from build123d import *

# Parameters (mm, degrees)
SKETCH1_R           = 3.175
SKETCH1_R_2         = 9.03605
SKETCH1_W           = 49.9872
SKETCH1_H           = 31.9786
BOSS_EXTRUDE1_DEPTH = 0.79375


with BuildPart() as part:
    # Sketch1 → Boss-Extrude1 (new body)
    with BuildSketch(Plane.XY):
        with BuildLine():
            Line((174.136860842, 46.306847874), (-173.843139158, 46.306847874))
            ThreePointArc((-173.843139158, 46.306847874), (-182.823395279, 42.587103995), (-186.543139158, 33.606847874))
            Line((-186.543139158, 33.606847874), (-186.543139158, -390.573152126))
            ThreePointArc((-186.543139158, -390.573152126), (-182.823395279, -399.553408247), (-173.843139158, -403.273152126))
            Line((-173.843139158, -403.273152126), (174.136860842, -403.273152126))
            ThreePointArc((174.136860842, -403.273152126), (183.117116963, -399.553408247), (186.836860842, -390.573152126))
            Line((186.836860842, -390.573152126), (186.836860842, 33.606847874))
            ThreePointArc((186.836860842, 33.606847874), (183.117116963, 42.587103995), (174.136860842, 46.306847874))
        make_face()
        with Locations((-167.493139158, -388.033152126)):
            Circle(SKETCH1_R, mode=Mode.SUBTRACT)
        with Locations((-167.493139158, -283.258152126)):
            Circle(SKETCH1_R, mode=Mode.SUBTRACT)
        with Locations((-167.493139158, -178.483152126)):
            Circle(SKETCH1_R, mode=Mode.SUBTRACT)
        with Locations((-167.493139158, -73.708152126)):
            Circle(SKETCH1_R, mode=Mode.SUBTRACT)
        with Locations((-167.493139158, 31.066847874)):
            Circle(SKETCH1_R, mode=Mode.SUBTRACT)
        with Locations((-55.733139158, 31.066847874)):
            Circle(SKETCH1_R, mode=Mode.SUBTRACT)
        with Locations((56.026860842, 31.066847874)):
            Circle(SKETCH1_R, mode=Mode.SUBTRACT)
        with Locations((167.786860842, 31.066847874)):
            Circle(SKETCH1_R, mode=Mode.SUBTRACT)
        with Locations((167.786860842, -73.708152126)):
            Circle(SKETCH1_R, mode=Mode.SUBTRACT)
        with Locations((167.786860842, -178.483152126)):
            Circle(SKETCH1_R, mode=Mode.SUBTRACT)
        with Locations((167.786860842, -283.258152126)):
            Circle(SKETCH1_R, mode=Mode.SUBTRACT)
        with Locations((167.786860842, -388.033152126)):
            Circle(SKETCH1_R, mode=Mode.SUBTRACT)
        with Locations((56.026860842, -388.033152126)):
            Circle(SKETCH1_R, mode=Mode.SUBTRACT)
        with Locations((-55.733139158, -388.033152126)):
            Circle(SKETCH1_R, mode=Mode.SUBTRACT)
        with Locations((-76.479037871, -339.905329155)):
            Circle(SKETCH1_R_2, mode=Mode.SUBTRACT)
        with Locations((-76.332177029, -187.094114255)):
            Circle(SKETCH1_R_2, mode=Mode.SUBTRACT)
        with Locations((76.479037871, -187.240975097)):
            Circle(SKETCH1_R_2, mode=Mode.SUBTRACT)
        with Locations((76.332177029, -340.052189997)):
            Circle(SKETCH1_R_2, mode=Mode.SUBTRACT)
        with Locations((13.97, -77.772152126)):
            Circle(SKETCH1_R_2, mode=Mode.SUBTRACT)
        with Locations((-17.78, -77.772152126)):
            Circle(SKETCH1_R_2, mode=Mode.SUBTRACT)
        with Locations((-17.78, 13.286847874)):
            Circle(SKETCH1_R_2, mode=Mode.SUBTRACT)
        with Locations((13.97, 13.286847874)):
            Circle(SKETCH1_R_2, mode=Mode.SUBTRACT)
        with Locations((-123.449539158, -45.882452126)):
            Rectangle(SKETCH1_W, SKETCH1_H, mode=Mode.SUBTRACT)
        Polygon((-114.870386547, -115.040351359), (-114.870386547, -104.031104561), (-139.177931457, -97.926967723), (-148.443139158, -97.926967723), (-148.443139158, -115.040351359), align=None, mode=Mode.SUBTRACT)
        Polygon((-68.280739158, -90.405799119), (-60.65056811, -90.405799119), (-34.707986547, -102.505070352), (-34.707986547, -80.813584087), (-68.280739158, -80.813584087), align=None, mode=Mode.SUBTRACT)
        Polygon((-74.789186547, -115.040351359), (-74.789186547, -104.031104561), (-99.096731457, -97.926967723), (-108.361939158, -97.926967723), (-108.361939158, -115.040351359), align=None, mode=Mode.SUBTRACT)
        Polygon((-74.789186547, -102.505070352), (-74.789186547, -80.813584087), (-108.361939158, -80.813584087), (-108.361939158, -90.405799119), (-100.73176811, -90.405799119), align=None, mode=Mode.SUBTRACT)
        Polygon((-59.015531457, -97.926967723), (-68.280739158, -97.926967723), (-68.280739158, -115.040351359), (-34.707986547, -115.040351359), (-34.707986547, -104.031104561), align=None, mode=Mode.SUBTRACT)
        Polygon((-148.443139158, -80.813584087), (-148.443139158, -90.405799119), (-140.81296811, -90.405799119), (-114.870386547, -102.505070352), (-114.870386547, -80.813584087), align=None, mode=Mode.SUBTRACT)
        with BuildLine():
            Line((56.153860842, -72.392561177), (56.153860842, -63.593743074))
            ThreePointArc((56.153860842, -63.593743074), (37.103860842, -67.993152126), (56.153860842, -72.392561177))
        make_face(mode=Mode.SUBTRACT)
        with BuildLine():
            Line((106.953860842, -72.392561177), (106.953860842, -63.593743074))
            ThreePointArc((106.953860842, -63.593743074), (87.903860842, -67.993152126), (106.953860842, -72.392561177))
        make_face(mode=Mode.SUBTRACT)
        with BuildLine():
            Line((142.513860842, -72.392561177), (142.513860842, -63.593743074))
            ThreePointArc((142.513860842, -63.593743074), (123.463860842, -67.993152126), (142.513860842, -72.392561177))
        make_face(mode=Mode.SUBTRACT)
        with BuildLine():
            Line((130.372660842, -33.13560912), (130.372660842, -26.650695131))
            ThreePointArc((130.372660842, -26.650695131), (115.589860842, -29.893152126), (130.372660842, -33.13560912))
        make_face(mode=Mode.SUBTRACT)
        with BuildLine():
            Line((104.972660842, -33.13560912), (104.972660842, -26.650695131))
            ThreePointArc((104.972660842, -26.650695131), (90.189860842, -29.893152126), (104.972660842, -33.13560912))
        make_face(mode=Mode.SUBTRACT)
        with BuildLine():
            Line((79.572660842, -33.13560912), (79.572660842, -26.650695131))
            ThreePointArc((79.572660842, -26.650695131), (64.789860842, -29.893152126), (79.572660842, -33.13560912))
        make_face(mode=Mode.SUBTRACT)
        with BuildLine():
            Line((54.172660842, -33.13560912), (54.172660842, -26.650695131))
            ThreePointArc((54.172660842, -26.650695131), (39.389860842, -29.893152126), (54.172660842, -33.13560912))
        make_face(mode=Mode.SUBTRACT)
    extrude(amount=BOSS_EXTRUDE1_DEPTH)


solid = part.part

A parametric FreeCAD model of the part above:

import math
import FreeCAD as App
import Part
import Sketcher

V = App.Vector
Q = App.Units.Quantity


def add_polygon(sketch, points):
    """Adds a closed chain of lines whose ends are joined by coincident constraints."""
    first, n = sketch.GeometryCount, len(points)
    for a, b in zip(points, points[1:] + points[:1]):
        sketch.addGeometry(Part.LineSegment(App.Vector(*a, 0), App.Vector(*b, 0)), False)
    for i in range(n):
        sketch.addConstraint(Sketcher.Constraint("Coincident", first + i, 2, first + (i + 1) % n, 1))

doc = App.newDocument("Part")
body = doc.addObject("PartDesign::Body", "Body")

# Sketch on XY plane
sketch1 = body.newObject("Sketcher::SketchObject", "Sketch")
sketch1.AttachmentSupport = (doc.getObject("XY_Plane"), [""])
sketch1.MapMode = "FlatFace"
sketch1.addGeometry(Part.LineSegment(V(174.136861, 46.306848, 0), V(-173.843139, 46.306848, 0)), False)  # 0
sketch1.addGeometry(Part.ArcOfCircle(Part.Circle(V(-173.843139, 33.606848, 0), V(0, 0, 1), 12.7), math.radians(90), math.radians(180)), False)  # 1
sketch1.addGeometry(Part.LineSegment(V(-186.543139, 33.606848, 0), V(-186.543139, -390.573152, 0)), False)  # 2
sketch1.addGeometry(Part.ArcOfCircle(Part.Circle(V(-173.843139, -390.573152, 0), V(0, 0, 1), 12.7), math.radians(180), math.radians(270)), False)  # 3
sketch1.addGeometry(Part.LineSegment(V(-173.843139, -403.273152, 0), V(174.136861, -403.273152, 0)), False)  # 4
sketch1.addGeometry(Part.ArcOfCircle(Part.Circle(V(174.136861, -390.573152, 0), V(0, 0, 1), 12.7), math.radians(-90), math.radians(0)), False)  # 5
sketch1.addGeometry(Part.LineSegment(V(186.836861, -390.573152, 0), V(186.836861, 33.606848, 0)), False)  # 6
sketch1.addGeometry(Part.ArcOfCircle(Part.Circle(V(174.136861, 33.606848, 0), V(0, 0, 1), 12.7), math.radians(0), math.radians(90)), False)  # 7
sketch1.addGeometry(Part.Circle(V(-167.493139, -388.033152, 0), V(0, 0, 1), 3.175), False)  # 8
sketch1.addGeometry(Part.Circle(V(-55.733139, -388.033152, 0), V(0, 0, 1), 3.175), False)  # 9
sketch1.addGeometry(Part.Circle(V(-76.479038, -339.905329, 0), V(0, 0, 1), 9.03605), False)  # 10
sketch1.addGeometry(Part.Circle(V(-167.493139, -283.258152, 0), V(0, 0, 1), 3.175), False)  # 11
sketch1.addGeometry(Part.Circle(V(-76.332177, -187.094114, 0), V(0, 0, 1), 9.03605), False)  # 12
sketch1.addGeometry(Part.Circle(V(56.026861, -388.033152, 0), V(0, 0, 1), 3.175), False)  # 13
sketch1.addGeometry(Part.Circle(V(76.332177, -340.05219, 0), V(0, 0, 1), 9.03605), False)  # 14
sketch1.addGeometry(Part.Circle(V(167.786861, -388.033152, 0), V(0, 0, 1), 3.175), False)  # 15
sketch1.addGeometry(Part.Circle(V(76.479038, -187.240975, 0), V(0, 0, 1), 9.03605), False)  # 16
sketch1.addGeometry(Part.Circle(V(167.786861, -283.258152, 0), V(0, 0, 1), 3.175), False)  # 17
sketch1.addGeometry(Part.Circle(V(-167.493139, -178.483152, 0), V(0, 0, 1), 3.175), False)  # 18
add_polygon(sketch1, [(-114.870387, -104.031105), (-114.870387, -115.040351), (-148.443139, -115.040351), (-148.443139, -97.926968), (-139.177931, -97.926968)])  # lines 19-23
sketch1.addGeometry(Part.Circle(V(-167.493139, -73.708152, 0), V(0, 0, 1), 3.175), False)  # 24
add_polygon(sketch1, [(-148.443139, -90.405799), (-148.443139, -80.813584), (-114.870387, -80.813584), (-114.870387, -102.50507), (-140.812968, -90.405799)])  # lines 25-29
add_polygon(sketch1, [(-74.789187, -104.031105), (-74.789187, -115.040351), (-108.361939, -115.040351), (-108.361939, -97.926968), (-99.096731, -97.926968)])  # lines 30-34
add_polygon(sketch1, [(-74.789187, -80.813584), (-74.789187, -102.50507), (-100.731768, -90.405799), (-108.361939, -90.405799), (-108.361939, -80.813584)])  # lines 35-39
add_polygon(sketch1, [(-68.280739, -97.926968), (-59.015531, -97.926968), (-34.707987, -104.031105), (-34.707987, -115.040351), (-68.280739, -115.040351)])  # lines 40-44
add_polygon(sketch1, [(-60.650568, -90.405799), (-68.280739, -90.405799), (-68.280739, -80.813584), (-34.707987, -80.813584), (-34.707987, -102.50507)])  # lines 45-49
sketch1.addGeometry(Part.Circle(V(-17.78, -77.772152, 0), V(0, 0, 1), 9.03605), False)  # 50
add_polygon(sketch1, [(-98.455939, -61.871752), (-148.443139, -61.871752), (-148.443139, -29.893152), (-98.455939, -29.893152)])  # lines 51-54
sketch1.addGeometry(Part.Circle(V(-167.493139, 31.066848, 0), V(0, 0, 1), 3.175), False)  # 55
sketch1.addGeometry(Part.Circle(V(-55.733139, 31.066848, 0), V(0, 0, 1), 3.175), False)  # 56
sketch1.addGeometry(Part.Circle(V(-17.78, 13.286848, 0), V(0, 0, 1), 9.03605), False)  # 57
sketch1.addGeometry(Part.Circle(V(13.97, -77.772152, 0), V(0, 0, 1), 9.03605), False)  # 58
sketch1.addGeometry(Part.Circle(V(167.786861, -178.483152, 0), V(0, 0, 1), 3.175), False)  # 59
sketch1.addGeometry(Part.Circle(V(167.786861, -73.708152, 0), V(0, 0, 1), 3.175), False)  # 60
sketch1.addGeometry(Part.LineSegment(V(56.153861, -63.593743, 0), V(56.153861, -72.392561, 0)), False)  # 61
sketch1.addGeometry(Part.ArcOfCircle(Part.Circle(V(47.136861, -67.993152, 0), V(0, 0, 1), 10.033), math.radians(26.007824), math.radians(333.992176)), False)  # 62
sketch1.addGeometry(Part.LineSegment(V(54.172661, -26.650695, 0), V(54.172661, -33.135609, 0)), False)  # 63
sketch1.addGeometry(Part.ArcOfCircle(Part.Circle(V(47.136861, -29.893152, 0), V(0, 0, 1), 7.747), math.radians(24.742671), math.radians(335.257329)), False)  # 64
sketch1.addGeometry(Part.LineSegment(V(79.572661, -26.650695, 0), V(79.572661, -33.135609, 0)), False)  # 65
sketch1.addGeometry(Part.ArcOfCircle(Part.Circle(V(72.536861, -29.893152, 0), V(0, 0, 1), 7.747), math.radians(24.742671), math.radians(335.257329)), False)  # 66
sketch1.addGeometry(Part.Circle(V(13.97, 13.286848, 0), V(0, 0, 1), 9.03605), False)  # 67
sketch1.addGeometry(Part.Circle(V(56.026861, 31.066848, 0), V(0, 0, 1), 3.175), False)  # 68
sketch1.addGeometry(Part.LineSegment(V(106.953861, -63.593743, 0), V(106.953861, -72.392561, 0)), False)  # 69
sketch1.addGeometry(Part.ArcOfCircle(Part.Circle(V(97.936861, -67.993152, 0), V(0, 0, 1), 10.033), math.radians(26.007824), math.radians(333.992176)), False)  # 70
sketch1.addGeometry(Part.LineSegment(V(104.972661, -26.650695, 0), V(104.972661, -33.135609, 0)), False)  # 71
sketch1.addGeometry(Part.ArcOfCircle(Part.Circle(V(97.936861, -29.893152, 0), V(0, 0, 1), 7.747), math.radians(24.742671), math.radians(335.257329)), False)  # 72
sketch1.addGeometry(Part.LineSegment(V(130.372661, -26.650695, 0), V(130.372661, -33.135609, 0)), False)  # 73
sketch1.addGeometry(Part.ArcOfCircle(Part.Circle(V(123.336861, -29.893152, 0), V(0, 0, 1), 7.747), math.radians(24.742671), math.radians(335.257329)), False)  # 74
sketch1.addGeometry(Part.LineSegment(V(142.513861, -63.593743, 0), V(142.513861, -72.392561, 0)), False)  # 75
sketch1.addGeometry(Part.ArcOfCircle(Part.Circle(V(133.496861, -67.993152, 0), V(0, 0, 1), 10.033), math.radians(26.007824), math.radians(333.992176)), False)  # 76
sketch1.addGeometry(Part.Circle(V(167.786861, 31.066848, 0), V(0, 0, 1), 3.175), False)  # 77
sketch1.addConstraint(Sketcher.Constraint("Tangent", 0, 2, 1, 1))
sketch1.addConstraint(Sketcher.Constraint("Tangent", 1, 2, 2, 1))
sketch1.addConstraint(Sketcher.Constraint("Tangent", 2, 2, 3, 1))
sketch1.addConstraint(Sketcher.Constraint("Tangent", 3, 2, 4, 1))
sketch1.addConstraint(Sketcher.Constraint("Tangent", 4, 2, 5, 1))
sketch1.addConstraint(Sketcher.Constraint("Tangent", 5, 2, 6, 1))
sketch1.addConstraint(Sketcher.Constraint("Tangent", 6, 2, 7, 1))
sketch1.addConstraint(Sketcher.Constraint("Tangent", 7, 2, 0, 1))
sketch1.addConstraint(Sketcher.Constraint("Coincident", 61, 1, 62, 1))
sketch1.addConstraint(Sketcher.Constraint("Coincident", 62, 2, 61, 2))
sketch1.addConstraint(Sketcher.Constraint("Coincident", 63, 1, 64, 1))
sketch1.addConstraint(Sketcher.Constraint("Coincident", 64, 2, 63, 2))
sketch1.addConstraint(Sketcher.Constraint("Coincident", 65, 1, 66, 1))
sketch1.addConstraint(Sketcher.Constraint("Coincident", 66, 2, 65, 2))
sketch1.addConstraint(Sketcher.Constraint("Coincident", 69, 1, 70, 1))
sketch1.addConstraint(Sketcher.Constraint("Coincident", 70, 2, 69, 2))
sketch1.addConstraint(Sketcher.Constraint("Coincident", 71, 1, 72, 1))
sketch1.addConstraint(Sketcher.Constraint("Coincident", 72, 2, 71, 2))
sketch1.addConstraint(Sketcher.Constraint("Coincident", 73, 1, 74, 1))
sketch1.addConstraint(Sketcher.Constraint("Coincident", 74, 2, 73, 2))
sketch1.addConstraint(Sketcher.Constraint("Coincident", 75, 1, 76, 1))
sketch1.addConstraint(Sketcher.Constraint("Coincident", 76, 2, 75, 2))
sketch1.addConstraint(Sketcher.Constraint("Horizontal", 0))
sketch1.addConstraint(Sketcher.Constraint("Vertical", 2))
sketch1.addConstraint(Sketcher.Constraint("Horizontal", 4))
sketch1.addConstraint(Sketcher.Constraint("Vertical", 6))
sketch1.addConstraint(Sketcher.Constraint("Vertical", 19))
sketch1.addConstraint(Sketcher.Constraint("Horizontal", 20))
sketch1.addConstraint(Sketcher.Constraint("Vertical", 21))
sketch1.addConstraint(Sketcher.Constraint("Horizontal", 22))
sketch1.addConstraint(Sketcher.Constraint("Vertical", 25))
sketch1.addConstraint(Sketcher.Constraint("Horizontal", 26))
sketch1.addConstraint(Sketcher.Constraint("Vertical", 27))
sketch1.addConstraint(Sketcher.Constraint("Horizontal", 29))
sketch1.addConstraint(Sketcher.Constraint("Vertical", 30))
sketch1.addConstraint(Sketcher.Constraint("Horizontal", 31))
sketch1.addConstraint(Sketcher.Constraint("Vertical", 32))
sketch1.addConstraint(Sketcher.Constraint("Horizontal", 33))
sketch1.addConstraint(Sketcher.Constraint("Vertical", 35))
sketch1.addConstraint(Sketcher.Constraint("Horizontal", 37))
sketch1.addConstraint(Sketcher.Constraint("Vertical", 38))
sketch1.addConstraint(Sketcher.Constraint("Horizontal", 39))
sketch1.addConstraint(Sketcher.Constraint("Horizontal", 40))
sketch1.addConstraint(Sketcher.Constraint("Vertical", 42))
sketch1.addConstraint(Sketcher.Constraint("Horizontal", 43))
sketch1.addConstraint(Sketcher.Constraint("Vertical", 44))
sketch1.addConstraint(Sketcher.Constraint("Horizontal", 45))
sketch1.addConstraint(Sketcher.Constraint("Vertical", 46))
sketch1.addConstraint(Sketcher.Constraint("Horizontal", 47))
sketch1.addConstraint(Sketcher.Constraint("Vertical", 48))
sketch1.addConstraint(Sketcher.Constraint("Horizontal", 51))
sketch1.addConstraint(Sketcher.Constraint("Vertical", 52))
sketch1.addConstraint(Sketcher.Constraint("Horizontal", 53))
sketch1.addConstraint(Sketcher.Constraint("Vertical", 54))
sketch1.addConstraint(Sketcher.Constraint("Vertical", 61))
sketch1.addConstraint(Sketcher.Constraint("Vertical", 63))
sketch1.addConstraint(Sketcher.Constraint("Vertical", 65))
sketch1.addConstraint(Sketcher.Constraint("Vertical", 69))
sketch1.addConstraint(Sketcher.Constraint("Vertical", 71))
sketch1.addConstraint(Sketcher.Constraint("Vertical", 73))
sketch1.addConstraint(Sketcher.Constraint("Vertical", 75))
sketch1.addConstraint(Sketcher.Constraint("Equal", 1, 3))
sketch1.addConstraint(Sketcher.Constraint("Equal", 3, 5))
sketch1.addConstraint(Sketcher.Constraint("Equal", 5, 7))
sketch1.addConstraint(Sketcher.Constraint("Equal", 8, 9))
sketch1.addConstraint(Sketcher.Constraint("Equal", 9, 11))
sketch1.addConstraint(Sketcher.Constraint("Equal", 10, 12))
sketch1.addConstraint(Sketcher.Constraint("Equal", 11, 13))
sketch1.addConstraint(Sketcher.Constraint("Equal", 12, 14))
sketch1.addConstraint(Sketcher.Constraint("Equal", 13, 15))
sketch1.addConstraint(Sketcher.Constraint("Equal", 14, 16))
sketch1.addConstraint(Sketcher.Constraint("Equal", 15, 17))
sketch1.addConstraint(Sketcher.Constraint("Equal", 17, 18))
sketch1.addConstraint(Sketcher.Constraint("Equal", 18, 24))
sketch1.addConstraint(Sketcher.Constraint("Equal", 16, 50))
sketch1.addConstraint(Sketcher.Constraint("Equal", 24, 55))
sketch1.addConstraint(Sketcher.Constraint("Equal", 55, 56))
sketch1.addConstraint(Sketcher.Constraint("Equal", 50, 57))
sketch1.addConstraint(Sketcher.Constraint("Equal", 57, 58))
sketch1.addConstraint(Sketcher.Constraint("Equal", 56, 59))
sketch1.addConstraint(Sketcher.Constraint("Equal", 59, 60))
sketch1.addConstraint(Sketcher.Constraint("Equal", 64, 66))
sketch1.addConstraint(Sketcher.Constraint("Equal", 58, 67))
sketch1.addConstraint(Sketcher.Constraint("Equal", 60, 68))
sketch1.addConstraint(Sketcher.Constraint("Equal", 62, 70))
sketch1.addConstraint(Sketcher.Constraint("Equal", 66, 72))
sketch1.addConstraint(Sketcher.Constraint("Equal", 72, 74))
sketch1.addConstraint(Sketcher.Constraint("Equal", 70, 76))
sketch1.addConstraint(Sketcher.Constraint("Equal", 68, 77))
sketch1.addConstraint(Sketcher.Constraint("Parallel", 23, 34))
sketch1.addConstraint(Sketcher.Constraint("Parallel", 28, 36))
sketch1.addConstraint(Sketcher.Constraint("Parallel", 34, 41))
sketch1.addConstraint(Sketcher.Constraint("Parallel", 36, 49))
sketch1.addConstraint(Sketcher.Constraint("Horizontal", 8, 3, 9, 3))
sketch1.addConstraint(Sketcher.Constraint("Horizontal", 9, 3, 13, 3))
sketch1.addConstraint(Sketcher.Constraint("Horizontal", 13, 3, 15, 3))
sketch1.addConstraint(Sketcher.Constraint("Horizontal", 11, 3, 17, 3))
sketch1.addConstraint(Sketcher.Constraint("Horizontal", 55, 3, 56, 3))
sketch1.addConstraint(Sketcher.Constraint("Horizontal", 50, 3, 58, 3))
sketch1.addConstraint(Sketcher.Constraint("Horizontal", 18, 3, 59, 3))
sketch1.addConstraint(Sketcher.Constraint("Horizontal", 24, 3, 60, 3))
sketch1.addConstraint(Sketcher.Constraint("Horizontal", 64, 3, 66, 3))
sketch1.addConstraint(Sketcher.Constraint("Horizontal", 57, 3, 67, 3))
sketch1.addConstraint(Sketcher.Constraint("Horizontal", 56, 3, 68, 3))
sketch1.addConstraint(Sketcher.Constraint("Horizontal", 62, 3, 70, 3))
sketch1.addConstraint(Sketcher.Constraint("Horizontal", 66, 3, 72, 3))
sketch1.addConstraint(Sketcher.Constraint("Horizontal", 72, 3, 74, 3))
sketch1.addConstraint(Sketcher.Constraint("Horizontal", 70, 3, 76, 3))
sketch1.addConstraint(Sketcher.Constraint("Horizontal", 68, 3, 77, 3))
sketch1.addConstraint(Sketcher.Constraint("Horizontal", 20, 2, 30, 2))
sketch1.addConstraint(Sketcher.Constraint("Horizontal", 22, 2, 32, 2))
sketch1.addConstraint(Sketcher.Constraint("Horizontal", 23, 2, 34, 2))
sketch1.addConstraint(Sketcher.Constraint("Horizontal", 27, 2, 35, 2))
sketch1.addConstraint(Sketcher.Constraint("Horizontal", 29, 2, 36, 2))
sketch1.addConstraint(Sketcher.Constraint("Horizontal", 26, 2, 38, 2))
sketch1.addConstraint(Sketcher.Constraint("Horizontal", 33, 2, 40, 2))
sketch1.addConstraint(Sketcher.Constraint("Horizontal", 34, 2, 41, 2))
sketch1.addConstraint(Sketcher.Constraint("Horizontal", 31, 2, 42, 2))
sketch1.addConstraint(Sketcher.Constraint("Horizontal", 37, 2, 45, 2))
sketch1.addConstraint(Sketcher.Constraint("Horizontal", 39, 2, 46, 2))
sketch1.addConstraint(Sketcher.Constraint("Horizontal", 35, 2, 48, 2))
sketch1.addConstraint(Sketcher.Constraint("Horizontal", 74, 3, 52, 2))
sketch1.addConstraint(Sketcher.Constraint("Horizontal", 63, 1, 65, 1))
sketch1.addConstraint(Sketcher.Constraint("Horizontal", 61, 1, 69, 1))
sketch1.addConstraint(Sketcher.Constraint("Horizontal", 65, 1, 71, 1))
sketch1.addConstraint(Sketcher.Constraint("Horizontal", 71, 1, 73, 1))
sketch1.addConstraint(Sketcher.Constraint("Horizontal", 69, 1, 75, 1))
sketch1.addConstraint(Sketcher.Constraint("Vertical", 8, 3, 11, 3))
sketch1.addConstraint(Sketcher.Constraint("Vertical", 15, 3, 17, 3))
sketch1.addConstraint(Sketcher.Constraint("Vertical", 11, 3, 18, 3))
sketch1.addConstraint(Sketcher.Constraint("Vertical", 18, 3, 24, 3))
sketch1.addConstraint(Sketcher.Constraint("Vertical", 24, 3, 55, 3))
sketch1.addConstraint(Sketcher.Constraint("Vertical", 9, 3, 56, 3))
sketch1.addConstraint(Sketcher.Constraint("Vertical", 50, 3, 57, 3))
sketch1.addConstraint(Sketcher.Constraint("Vertical", 17, 3, 59, 3))
sketch1.addConstraint(Sketcher.Constraint("Vertical", 59, 3, 60, 3))
sketch1.addConstraint(Sketcher.Constraint("Vertical", 62, 3, 64, 3))
sketch1.addConstraint(Sketcher.Constraint("Vertical", 58, 3, 67, 3))
sketch1.addConstraint(Sketcher.Constraint("Vertical", 13, 3, 68, 3))
sketch1.addConstraint(Sketcher.Constraint("Vertical", 70, 3, 72, 3))
sketch1.addConstraint(Sketcher.Constraint("Vertical", 60, 3, 77, 3))
sketch1.addConstraint(Sketcher.Constraint("Vertical", 21, 2, 25, 2))
sketch1.addConstraint(Sketcher.Constraint("Vertical", 23, 2, 26, 2))
sketch1.addConstraint(Sketcher.Constraint("Vertical", 34, 2, 35, 2))
sketch1.addConstraint(Sketcher.Constraint("Vertical", 32, 2, 37, 2))
sketch1.addConstraint(Sketcher.Constraint("Vertical", 44, 2, 45, 2))
sketch1.addConstraint(Sketcher.Constraint("Vertical", 42, 2, 47, 2))
sketch1.addConstraint(Sketcher.Constraint("Vertical", 29, 2, 51, 2))
sketch1.addConstraint(Sketcher.Constraint("Equal", 26, 31))
sketch1.addConstraint(Sketcher.Constraint("Equal", 33, 40))
sketch1.addConstraint(Sketcher.Constraint("Radius", 1, Q("0.5 in")))
sketch1.addConstraint(Sketcher.Constraint("Diameter", 8, Q("0.25 in")))
sketch1.addConstraint(Sketcher.Constraint("DistanceX", 0, 2, 0, 1, Q("13.7 in")))
sketch1.addConstraint(Sketcher.Constraint("DistanceY", 2, 2, 2, 1, Q("16.7 in")))
sketch1.addConstraint(Sketcher.Constraint("Radius", 62, Q("0.395 in")))
sketch1.addConstraint(Sketcher.Constraint("Radius", 64, Q("0.305 in")))
sketch1.addConstraint(Sketcher.Constraint("Diameter", 10, Q("0.7115 in")))
sketch1.addConstraint(Sketcher.Constraint("DistanceX", 50, 3, -1, 1, Q("0.7 in")))
sketch1.addConstraint(Sketcher.Constraint("DistanceX", 51, 2, 51, 1, Q("1.968 in")))
sketch1.addConstraint(Sketcher.Constraint("DistanceY", 52, 1, 52, 2, Q("1.259 in")))
sketch1.addConstraint(Sketcher.Constraint("DistanceX", -1, 1, 58, 3, Q("0.55 in")))
sketch1.addConstraint(Sketcher.Constraint("DistanceX", 29, 2, 29, 1, 7.630171))
sketch1.addConstraint(Sketcher.Constraint("DistanceY", 61, 2, 61, 1, 8.798818))
sketch1.addConstraint(Sketcher.Constraint("DistanceY", 28, 2, -1, 1, 90.405799))
sketch1.addConstraint(Sketcher.Constraint("DistanceX", 20, 2, 20, 1, 33.572753))
sketch1.addConstraint(Sketcher.Constraint("DistanceX", 22, 1, 22, 2, 9.265208))
sketch1.addConstraint(Sketcher.Constraint("DistanceY", 19, 2, 19, 1, 11.009247))
sketch1.addConstraint(Sketcher.Constraint("DistanceY", 21, 1, 21, 2, 17.113384))
sketch1.addConstraint(Sketcher.Constraint("DistanceY", 25, 1, 25, 2, 9.592215))
sketch1.addConstraint(Sketcher.Constraint("DistanceY", 27, 2, 27, 1, 21.691486))
sketch1.addConstraint(Sketcher.Constraint("DistanceY", 63, 2, 63, 1, 6.484914))
sketch1.addConstraint(Sketcher.Constraint("DistanceX", 1, 3, -1, 1, 173.843139))
sketch1.addConstraint(Sketcher.Constraint("DistanceX", 8, 3, -1, 1, 167.493139))
sketch1.addConstraint(Sketcher.Constraint("DistanceX", 9, 3, -1, 1, 55.733139))
sketch1.addConstraint(Sketcher.Constraint("DistanceY", 10, 3, -1, 1, 339.905329))
sketch1.addConstraint(Sketcher.Constraint("DistanceX", -1, 1, 13, 3, 56.026861))
sketch1.addConstraint(Sketcher.Constraint("DistanceY", 14, 3, -1, 1, 340.05219))
sketch1.addConstraint(Sketcher.Constraint("DistanceX", -1, 1, 15, 3, 167.786861))
sketch1.addConstraint(Sketcher.Constraint("DistanceX", -1, 1, 62, 3, 47.136861))
sketch1.addConstraint(Sketcher.Constraint("DistanceX", -1, 1, 66, 3, 72.536861))
sketch1.addConstraint(Sketcher.Constraint("DistanceX", -1, 1, 70, 3, 97.936861))
sketch1.addConstraint(Sketcher.Constraint("DistanceX", -1, 1, 74, 3, 123.336861))
sketch1.addConstraint(Sketcher.Constraint("DistanceX", -1, 1, 76, 3, 133.496861))
sketch1.addConstraint(Sketcher.Constraint("DistanceY", 19, 2, -1, 1, 115.040351))
sketch1.addConstraint(Sketcher.Constraint("DistanceX", 20, 2, -1, 1, 148.443139))
sketch1.addConstraint(Sketcher.Constraint("DistanceX", 31, 2, -1, 1, 108.361939))
sketch1.addConstraint(Sketcher.Constraint("DistanceX", 40, 2, -1, 1, 59.015531))
sketch1.addConstraint(Sketcher.Constraint("DistanceY", 62, 2, -1, 1, 72.392561))
sketch1.addConstraint(Sketcher.Constraint("DistanceY", 64, 2, -1, 1, 33.135609))
sketch1.addConstraint(Sketcher.Constraint("DistanceY", -1, 1, 1, 3, 33.606848))
sketch1.addConstraint(Sketcher.Constraint("DistanceY", 8, 3, -1, 1, 388.033152))
sketch1.addConstraint(Sketcher.Constraint("DistanceX", 10, 3, -1, 1, 76.479038))
sketch1.addConstraint(Sketcher.Constraint("DistanceY", 11, 3, -1, 1, 283.258152))
sketch1.addConstraint(Sketcher.Constraint("DistanceX", 12, 3, -1, 1, 76.332177))
sketch1.addConstraint(Sketcher.Constraint("DistanceY", 12, 3, -1, 1, 187.094114))
sketch1.addConstraint(Sketcher.Constraint("DistanceX", -1, 1, 14, 3, 76.332177))
sketch1.addConstraint(Sketcher.Constraint("DistanceX", -1, 1, 16, 3, 76.479038))
sketch1.addConstraint(Sketcher.Constraint("DistanceY", 16, 3, -1, 1, 187.240975))
sketch1.addConstraint(Sketcher.Constraint("DistanceY", 18, 3, -1, 1, 178.483152))
sketch1.addConstraint(Sketcher.Constraint("DistanceY", 24, 3, -1, 1, 73.708152))
sketch1.addConstraint(Sketcher.Constraint("DistanceY", 50, 3, -1, 1, 77.772152))
sketch1.addConstraint(Sketcher.Constraint("DistanceY", -1, 1, 55, 3, 31.066848))
sketch1.addConstraint(Sketcher.Constraint("DistanceY", -1, 1, 57, 3, 13.286848))
pad1 = body.newObject("PartDesign::Pad", "Pad")
pad1.Profile = sketch1
pad1.Length = Q("0.03125 in")

doc.recompute()
